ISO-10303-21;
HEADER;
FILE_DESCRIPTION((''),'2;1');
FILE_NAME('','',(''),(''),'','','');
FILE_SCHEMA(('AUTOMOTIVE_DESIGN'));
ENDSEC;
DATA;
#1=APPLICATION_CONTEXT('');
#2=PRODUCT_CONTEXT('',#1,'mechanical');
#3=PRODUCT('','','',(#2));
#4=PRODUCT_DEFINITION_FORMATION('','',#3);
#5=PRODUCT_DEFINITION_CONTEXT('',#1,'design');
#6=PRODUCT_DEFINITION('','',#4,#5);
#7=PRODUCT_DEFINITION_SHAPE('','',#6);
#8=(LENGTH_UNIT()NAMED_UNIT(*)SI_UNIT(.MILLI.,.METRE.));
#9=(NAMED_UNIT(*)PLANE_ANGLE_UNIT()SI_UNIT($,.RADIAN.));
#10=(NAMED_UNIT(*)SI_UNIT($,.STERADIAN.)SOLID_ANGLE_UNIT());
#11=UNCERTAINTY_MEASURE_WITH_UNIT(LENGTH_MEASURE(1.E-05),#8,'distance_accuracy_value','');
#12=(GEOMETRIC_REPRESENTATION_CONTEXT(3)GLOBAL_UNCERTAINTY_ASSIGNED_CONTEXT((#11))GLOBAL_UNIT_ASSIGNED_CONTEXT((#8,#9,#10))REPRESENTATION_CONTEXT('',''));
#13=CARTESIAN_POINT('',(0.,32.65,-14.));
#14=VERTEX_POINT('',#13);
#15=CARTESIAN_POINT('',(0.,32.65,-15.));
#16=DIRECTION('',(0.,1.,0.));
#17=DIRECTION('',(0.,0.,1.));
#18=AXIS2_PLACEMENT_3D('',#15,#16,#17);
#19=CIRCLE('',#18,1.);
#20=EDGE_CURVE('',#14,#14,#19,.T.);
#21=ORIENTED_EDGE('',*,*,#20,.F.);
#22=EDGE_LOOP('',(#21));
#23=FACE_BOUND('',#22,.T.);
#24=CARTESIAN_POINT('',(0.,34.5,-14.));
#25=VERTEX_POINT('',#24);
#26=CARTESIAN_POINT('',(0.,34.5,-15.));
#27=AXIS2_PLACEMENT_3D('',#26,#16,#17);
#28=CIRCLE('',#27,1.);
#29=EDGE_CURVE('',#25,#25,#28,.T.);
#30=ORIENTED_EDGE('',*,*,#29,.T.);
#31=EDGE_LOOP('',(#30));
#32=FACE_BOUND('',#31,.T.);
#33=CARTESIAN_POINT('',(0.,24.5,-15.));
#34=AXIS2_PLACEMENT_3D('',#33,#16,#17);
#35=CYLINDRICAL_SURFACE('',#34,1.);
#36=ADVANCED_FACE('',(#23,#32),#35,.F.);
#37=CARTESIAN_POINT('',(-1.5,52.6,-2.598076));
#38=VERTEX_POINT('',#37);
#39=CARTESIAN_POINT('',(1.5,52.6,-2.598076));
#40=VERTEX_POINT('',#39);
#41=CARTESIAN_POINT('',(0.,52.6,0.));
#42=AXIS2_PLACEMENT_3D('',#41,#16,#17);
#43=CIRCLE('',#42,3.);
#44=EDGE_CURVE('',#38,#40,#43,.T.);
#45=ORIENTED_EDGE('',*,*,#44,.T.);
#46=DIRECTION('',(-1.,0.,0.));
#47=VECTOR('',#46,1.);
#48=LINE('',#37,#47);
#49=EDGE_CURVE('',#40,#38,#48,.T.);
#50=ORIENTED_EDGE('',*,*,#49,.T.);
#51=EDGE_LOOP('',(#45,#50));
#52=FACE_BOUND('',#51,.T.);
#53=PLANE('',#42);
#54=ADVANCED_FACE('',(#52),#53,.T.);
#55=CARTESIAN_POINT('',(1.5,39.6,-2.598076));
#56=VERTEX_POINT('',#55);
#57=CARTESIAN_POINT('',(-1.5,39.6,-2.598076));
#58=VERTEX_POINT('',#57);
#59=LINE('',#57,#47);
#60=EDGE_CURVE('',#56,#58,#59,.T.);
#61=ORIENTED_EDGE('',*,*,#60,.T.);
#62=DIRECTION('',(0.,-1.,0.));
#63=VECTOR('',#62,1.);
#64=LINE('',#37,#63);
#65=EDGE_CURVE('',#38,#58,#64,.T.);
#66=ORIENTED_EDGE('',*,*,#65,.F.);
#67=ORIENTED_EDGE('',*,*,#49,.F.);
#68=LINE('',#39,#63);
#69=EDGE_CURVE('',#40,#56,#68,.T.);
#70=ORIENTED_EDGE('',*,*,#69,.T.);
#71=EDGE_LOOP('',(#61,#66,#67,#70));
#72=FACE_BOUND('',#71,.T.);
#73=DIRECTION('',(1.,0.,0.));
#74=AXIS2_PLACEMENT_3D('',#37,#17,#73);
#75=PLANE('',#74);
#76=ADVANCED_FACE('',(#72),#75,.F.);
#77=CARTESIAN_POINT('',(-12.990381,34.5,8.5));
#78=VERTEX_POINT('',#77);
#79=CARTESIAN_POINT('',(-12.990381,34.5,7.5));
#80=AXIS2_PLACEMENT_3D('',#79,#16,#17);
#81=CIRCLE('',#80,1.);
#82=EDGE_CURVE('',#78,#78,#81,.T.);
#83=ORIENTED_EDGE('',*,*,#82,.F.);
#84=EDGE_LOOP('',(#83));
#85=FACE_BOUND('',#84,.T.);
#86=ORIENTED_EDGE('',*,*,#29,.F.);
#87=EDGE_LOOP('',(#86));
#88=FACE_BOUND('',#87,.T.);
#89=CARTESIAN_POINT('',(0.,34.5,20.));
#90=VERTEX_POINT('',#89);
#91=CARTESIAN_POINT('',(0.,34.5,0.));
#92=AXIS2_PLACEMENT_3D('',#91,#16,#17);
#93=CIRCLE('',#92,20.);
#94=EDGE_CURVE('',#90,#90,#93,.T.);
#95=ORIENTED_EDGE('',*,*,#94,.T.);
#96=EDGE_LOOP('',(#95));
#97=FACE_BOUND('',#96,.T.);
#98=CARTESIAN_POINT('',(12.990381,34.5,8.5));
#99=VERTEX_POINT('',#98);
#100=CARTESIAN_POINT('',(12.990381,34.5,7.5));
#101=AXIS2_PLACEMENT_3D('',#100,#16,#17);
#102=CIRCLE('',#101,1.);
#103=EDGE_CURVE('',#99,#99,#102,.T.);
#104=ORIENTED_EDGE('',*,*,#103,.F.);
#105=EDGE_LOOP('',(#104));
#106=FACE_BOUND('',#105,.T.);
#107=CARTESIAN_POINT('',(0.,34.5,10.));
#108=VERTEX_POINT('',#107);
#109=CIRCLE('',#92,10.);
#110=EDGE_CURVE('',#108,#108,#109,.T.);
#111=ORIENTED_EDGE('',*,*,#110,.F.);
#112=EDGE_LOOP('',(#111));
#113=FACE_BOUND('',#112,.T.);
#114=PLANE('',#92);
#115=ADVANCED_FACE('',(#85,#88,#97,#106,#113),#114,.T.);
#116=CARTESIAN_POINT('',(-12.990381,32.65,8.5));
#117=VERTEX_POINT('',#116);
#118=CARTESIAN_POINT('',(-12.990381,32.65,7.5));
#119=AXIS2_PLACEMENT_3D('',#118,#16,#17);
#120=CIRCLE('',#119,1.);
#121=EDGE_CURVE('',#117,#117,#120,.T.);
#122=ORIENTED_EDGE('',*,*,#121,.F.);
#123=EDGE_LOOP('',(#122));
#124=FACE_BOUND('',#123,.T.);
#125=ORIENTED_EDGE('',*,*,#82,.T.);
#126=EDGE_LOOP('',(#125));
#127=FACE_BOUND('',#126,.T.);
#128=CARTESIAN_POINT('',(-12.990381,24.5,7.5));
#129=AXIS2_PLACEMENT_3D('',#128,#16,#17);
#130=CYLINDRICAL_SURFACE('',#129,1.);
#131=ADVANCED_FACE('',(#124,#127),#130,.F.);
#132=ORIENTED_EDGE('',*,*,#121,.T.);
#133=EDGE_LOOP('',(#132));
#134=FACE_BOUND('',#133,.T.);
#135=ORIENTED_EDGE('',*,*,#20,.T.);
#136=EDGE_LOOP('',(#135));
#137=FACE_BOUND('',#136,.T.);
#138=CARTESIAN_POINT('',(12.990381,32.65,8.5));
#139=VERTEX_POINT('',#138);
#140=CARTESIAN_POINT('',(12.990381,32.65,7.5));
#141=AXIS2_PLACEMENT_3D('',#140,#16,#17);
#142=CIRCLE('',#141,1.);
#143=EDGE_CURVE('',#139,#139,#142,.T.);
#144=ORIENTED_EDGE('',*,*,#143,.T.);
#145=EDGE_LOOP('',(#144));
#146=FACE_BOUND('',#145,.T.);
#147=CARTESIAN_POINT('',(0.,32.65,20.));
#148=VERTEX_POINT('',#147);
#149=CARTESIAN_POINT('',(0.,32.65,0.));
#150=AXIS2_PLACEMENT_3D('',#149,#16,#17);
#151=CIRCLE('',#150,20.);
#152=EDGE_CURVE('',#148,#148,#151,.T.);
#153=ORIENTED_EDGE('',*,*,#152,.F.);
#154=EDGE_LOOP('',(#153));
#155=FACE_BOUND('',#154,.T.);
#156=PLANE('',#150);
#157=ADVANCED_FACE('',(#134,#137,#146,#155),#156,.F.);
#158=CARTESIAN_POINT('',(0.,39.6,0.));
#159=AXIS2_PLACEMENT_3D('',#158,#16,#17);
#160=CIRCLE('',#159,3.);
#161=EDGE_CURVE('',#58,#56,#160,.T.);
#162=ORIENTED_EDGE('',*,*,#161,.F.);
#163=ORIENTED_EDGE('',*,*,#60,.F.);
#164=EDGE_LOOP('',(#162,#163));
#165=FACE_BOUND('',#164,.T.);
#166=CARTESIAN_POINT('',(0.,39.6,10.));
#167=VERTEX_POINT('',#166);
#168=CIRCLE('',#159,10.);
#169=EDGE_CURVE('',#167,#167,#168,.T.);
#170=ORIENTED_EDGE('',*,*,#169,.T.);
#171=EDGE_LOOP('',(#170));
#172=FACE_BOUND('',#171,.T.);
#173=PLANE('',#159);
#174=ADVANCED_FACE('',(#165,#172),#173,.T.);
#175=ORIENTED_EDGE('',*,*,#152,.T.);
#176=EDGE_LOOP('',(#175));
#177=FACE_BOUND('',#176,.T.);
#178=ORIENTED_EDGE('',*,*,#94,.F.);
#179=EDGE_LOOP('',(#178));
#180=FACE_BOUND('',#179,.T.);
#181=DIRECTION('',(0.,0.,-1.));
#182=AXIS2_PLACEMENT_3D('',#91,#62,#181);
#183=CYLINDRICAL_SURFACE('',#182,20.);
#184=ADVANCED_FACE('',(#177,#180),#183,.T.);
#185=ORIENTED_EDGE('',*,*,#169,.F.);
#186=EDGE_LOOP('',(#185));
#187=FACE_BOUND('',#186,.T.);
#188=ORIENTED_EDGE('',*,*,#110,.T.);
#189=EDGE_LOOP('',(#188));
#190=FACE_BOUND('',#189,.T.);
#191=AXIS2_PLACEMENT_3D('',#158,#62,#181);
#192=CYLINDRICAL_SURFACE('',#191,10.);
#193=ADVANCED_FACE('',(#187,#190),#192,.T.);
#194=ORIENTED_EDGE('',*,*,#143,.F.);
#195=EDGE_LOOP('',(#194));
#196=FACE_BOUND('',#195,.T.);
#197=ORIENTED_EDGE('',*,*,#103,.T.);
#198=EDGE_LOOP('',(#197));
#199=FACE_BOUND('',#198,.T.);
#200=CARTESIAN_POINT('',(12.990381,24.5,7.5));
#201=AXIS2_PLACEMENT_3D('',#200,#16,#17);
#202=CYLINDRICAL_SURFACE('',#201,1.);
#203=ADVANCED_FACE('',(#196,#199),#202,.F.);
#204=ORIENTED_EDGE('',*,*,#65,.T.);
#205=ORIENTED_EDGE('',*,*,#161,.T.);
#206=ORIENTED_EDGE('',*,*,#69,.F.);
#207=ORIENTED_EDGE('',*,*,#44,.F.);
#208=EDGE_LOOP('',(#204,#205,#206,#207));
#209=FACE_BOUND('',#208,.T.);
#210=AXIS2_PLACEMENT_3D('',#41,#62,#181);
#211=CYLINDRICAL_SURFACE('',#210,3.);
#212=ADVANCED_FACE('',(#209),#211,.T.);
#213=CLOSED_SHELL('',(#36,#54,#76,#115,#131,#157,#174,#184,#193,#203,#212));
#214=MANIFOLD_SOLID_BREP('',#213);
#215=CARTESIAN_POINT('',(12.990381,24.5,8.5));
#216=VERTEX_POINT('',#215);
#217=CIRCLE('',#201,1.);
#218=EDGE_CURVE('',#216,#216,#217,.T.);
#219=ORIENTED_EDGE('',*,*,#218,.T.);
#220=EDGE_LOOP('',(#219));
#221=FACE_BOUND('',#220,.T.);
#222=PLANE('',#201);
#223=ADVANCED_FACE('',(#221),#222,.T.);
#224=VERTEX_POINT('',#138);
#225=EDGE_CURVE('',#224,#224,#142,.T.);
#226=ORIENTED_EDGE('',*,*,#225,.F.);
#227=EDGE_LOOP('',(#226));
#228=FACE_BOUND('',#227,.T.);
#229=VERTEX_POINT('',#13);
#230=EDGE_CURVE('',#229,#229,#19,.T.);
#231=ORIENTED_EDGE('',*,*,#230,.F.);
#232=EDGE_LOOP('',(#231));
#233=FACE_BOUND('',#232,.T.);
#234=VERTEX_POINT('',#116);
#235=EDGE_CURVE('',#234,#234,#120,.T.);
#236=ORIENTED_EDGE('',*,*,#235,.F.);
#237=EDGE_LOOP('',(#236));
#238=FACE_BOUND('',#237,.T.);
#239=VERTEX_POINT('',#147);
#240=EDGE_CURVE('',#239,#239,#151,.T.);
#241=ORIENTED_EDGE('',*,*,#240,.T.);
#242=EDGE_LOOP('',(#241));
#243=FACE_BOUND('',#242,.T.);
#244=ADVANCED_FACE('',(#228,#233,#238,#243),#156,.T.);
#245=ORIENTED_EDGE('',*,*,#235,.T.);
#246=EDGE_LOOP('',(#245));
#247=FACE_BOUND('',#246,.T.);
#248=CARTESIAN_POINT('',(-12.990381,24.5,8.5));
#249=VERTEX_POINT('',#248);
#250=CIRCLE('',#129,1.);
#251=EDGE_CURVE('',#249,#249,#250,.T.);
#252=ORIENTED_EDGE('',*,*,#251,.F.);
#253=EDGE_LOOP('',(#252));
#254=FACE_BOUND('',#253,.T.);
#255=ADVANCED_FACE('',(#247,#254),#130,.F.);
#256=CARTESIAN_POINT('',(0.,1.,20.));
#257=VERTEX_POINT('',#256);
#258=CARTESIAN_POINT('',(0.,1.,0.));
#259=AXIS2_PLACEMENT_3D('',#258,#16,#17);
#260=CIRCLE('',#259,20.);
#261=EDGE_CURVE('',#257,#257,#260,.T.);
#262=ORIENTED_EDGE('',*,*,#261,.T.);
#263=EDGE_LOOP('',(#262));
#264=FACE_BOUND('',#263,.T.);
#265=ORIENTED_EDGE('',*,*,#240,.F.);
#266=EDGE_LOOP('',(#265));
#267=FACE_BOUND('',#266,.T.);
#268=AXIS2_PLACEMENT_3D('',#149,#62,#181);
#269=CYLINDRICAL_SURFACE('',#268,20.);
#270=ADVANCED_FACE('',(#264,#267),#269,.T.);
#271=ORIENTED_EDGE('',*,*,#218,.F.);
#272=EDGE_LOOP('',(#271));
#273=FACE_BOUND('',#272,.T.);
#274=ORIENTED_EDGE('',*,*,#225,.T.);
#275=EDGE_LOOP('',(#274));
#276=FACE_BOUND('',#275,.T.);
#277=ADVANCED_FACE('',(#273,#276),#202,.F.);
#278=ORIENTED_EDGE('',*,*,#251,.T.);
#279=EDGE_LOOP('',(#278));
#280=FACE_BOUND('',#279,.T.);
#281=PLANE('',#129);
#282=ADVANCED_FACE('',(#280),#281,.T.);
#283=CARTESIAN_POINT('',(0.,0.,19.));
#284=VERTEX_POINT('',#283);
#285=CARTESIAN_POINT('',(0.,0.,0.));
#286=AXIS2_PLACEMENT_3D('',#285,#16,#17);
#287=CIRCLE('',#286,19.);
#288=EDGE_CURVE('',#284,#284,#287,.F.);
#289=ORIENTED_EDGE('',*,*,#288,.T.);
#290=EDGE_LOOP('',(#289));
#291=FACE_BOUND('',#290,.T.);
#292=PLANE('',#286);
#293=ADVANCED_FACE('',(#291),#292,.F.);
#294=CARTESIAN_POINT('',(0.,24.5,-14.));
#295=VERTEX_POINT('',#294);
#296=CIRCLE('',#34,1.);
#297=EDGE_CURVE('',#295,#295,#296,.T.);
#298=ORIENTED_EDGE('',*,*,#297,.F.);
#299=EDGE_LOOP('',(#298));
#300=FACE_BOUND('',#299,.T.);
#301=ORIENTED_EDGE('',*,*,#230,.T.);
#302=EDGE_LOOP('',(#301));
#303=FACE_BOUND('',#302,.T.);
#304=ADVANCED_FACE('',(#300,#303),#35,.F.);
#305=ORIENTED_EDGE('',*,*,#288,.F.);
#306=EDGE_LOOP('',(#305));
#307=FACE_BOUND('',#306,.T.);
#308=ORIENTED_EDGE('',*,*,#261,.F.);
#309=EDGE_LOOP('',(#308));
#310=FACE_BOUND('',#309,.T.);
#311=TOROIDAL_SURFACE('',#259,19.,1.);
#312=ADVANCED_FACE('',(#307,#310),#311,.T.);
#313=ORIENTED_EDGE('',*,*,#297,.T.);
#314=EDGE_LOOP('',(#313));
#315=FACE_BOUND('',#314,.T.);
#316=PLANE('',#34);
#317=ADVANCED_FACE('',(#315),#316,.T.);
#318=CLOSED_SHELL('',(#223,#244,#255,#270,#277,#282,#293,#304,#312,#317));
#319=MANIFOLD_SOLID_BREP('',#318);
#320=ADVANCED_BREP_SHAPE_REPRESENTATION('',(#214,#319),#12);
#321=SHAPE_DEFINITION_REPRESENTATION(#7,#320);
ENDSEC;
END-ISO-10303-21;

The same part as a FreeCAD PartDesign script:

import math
import FreeCAD as App
import Part
import Sketcher

V = App.Vector


def edges_at(feature, points):
    """Names of the edges that pass closest to the given points."""
    edges = feature.Shape.Edges
    near = lambda p: min(range(len(edges)), key=lambda i: edges[i].distToShape(Part.Vertex(*p))[0])
    return sorted({f"Edge{near(p) + 1}" for p in points})

doc = App.newDocument("Part")
body = doc.addObject("PartDesign::Body", "Body")

# Sketch on XZ plane
sketch1 = body.newObject("Sketcher::SketchObject", "Sketch")
sketch1.AttachmentSupport = (doc.getObject("XZ_Plane"), [""])
sketch1.MapMode = "FlatFace"
sketch1.addGeometry(Part.Circle(V(0, 0, 0), V(0, 0, 1), 20), False)
sketch1.addConstraint([
    Sketcher.Constraint("Coincident", 0, 3, -1, 1),
    Sketcher.Constraint("Diameter", 0, 40.0),
])
pad1 = body.newObject("PartDesign::Pad", "Pad")
pad1.Profile = sketch1
pad1.Length = 32.65
pad1.Reversed = True
body2 = doc.addObject("PartDesign::Body", "Body001")

# Sketch on XZ plane
sketch2 = body2.newObject("Sketcher::SketchObject", "Sketch001")
sketch2.AttachmentSupport = (doc.getObject("XZ_Plane001"), [""])
sketch2.MapMode = "FlatFace"
sketch2.AttachmentOffset = App.Placement(V(0, 0, -32.65), App.Rotation())
sketch2.addGeometry(Part.Circle(V(0, 0, 0), V(0, 0, 1), 20), False)
sketch2.addConstraint([
    Sketcher.Constraint("Coincident", 0, 3, -1, 1),
    Sketcher.Constraint("Diameter", 0, 40.0),
])
pad2 = body2.newObject("PartDesign::Pad", "Pad001")
pad2.Profile = sketch2
pad2.Length = 1.85
pad2.Reversed = True

# Sketch on XZ plane
sketch3 = body2.newObject("Sketcher::SketchObject", "Sketch002")
sketch3.AttachmentSupport = (doc.getObject("XZ_Plane001"), [""])
sketch3.MapMode = "FlatFace"
sketch3.AttachmentOffset = App.Placement(V(0, 0, -34.5), App.Rotation())
sketch3.addGeometry(Part.Circle(V(0, 0, 0), V(0, 0, 1), 10), False)
sketch3.addConstraint([
    Sketcher.Constraint("Coincident", 0, 3, -1, 1),
    Sketcher.Constraint("Diameter", 0, 20.0),
])
pad3 = body2.newObject("PartDesign::Pad", "Pad002")
pad3.Profile = sketch3
pad3.Length = 5.1
pad3.Reversed = True
body3 = doc.addObject("PartDesign::Body", "Body002")
body3.AllowCompound = True

# Sketch on XZ plane
sketch4 = body3.newObject("Sketcher::SketchObject", "Sketch003")
sketch4.AttachmentSupport = (doc.getObject("XZ_Plane002"), [""])
sketch4.MapMode = "FlatFace"
sketch4.AttachmentOffset = App.Placement(V(0, 0, -34.5), App.Rotation())
sketch4.addGeometry([
    Part.Circle(V(0, -15, 0), V(0, 0, 1), 1),
    Part.Circle(V(13, 7.5, 0), V(0, 0, 1), 1),
    Part.Circle(V(-13, 7.5, 0), V(0, 0, 1), 1),
], False)
sketch4.addConstraint([
    Sketcher.Constraint("Equal", 0, 1),
    Sketcher.Constraint("Equal", 1, 2),
    Sketcher.Constraint("Symmetric", 1, 3, 2, 3, -2),
    Sketcher.Constraint("PointOnObject", 0, 3, -2),
    Sketcher.Constraint("Diameter", 0, 2.0),
    Sketcher.Constraint("DistanceY", 0, 3, -1, 1, 15.0),
    Sketcher.Constraint("DistanceY", -1, 1, 1, 3, 7.5),
    Sketcher.Constraint("DistanceX", -1, 1, 1, 3, 12.990381),
])
pad4 = body3.newObject("PartDesign::Pad", "Pad003")
pad4.Profile = sketch4
pad4.Length = 10
doc.recompute()

body4 = doc.addObject("PartDesign::Body", "Body003")
body4.BaseFeature = body3
boolean = body.newObject("PartDesign::Boolean", "Boolean")
boolean.Type = "Cut"
boolean.addObjects([body4])
doc.recompute()

fillet = body.newObject("PartDesign::Fillet", "Fillet")
fillet.Base = (boolean, edges_at(boolean, [(0, 0, -20)]))
fillet.Radius = 1
doc.recompute()

boolean2 = body2.newObject("PartDesign::Boolean", "Boolean001")
boolean2.Type = "Cut"
boolean2.addObjects([body3])

# Sketch on XZ plane
sketch5 = body2.newObject("Sketcher::SketchObject", "Sketch004")
sketch5.AttachmentSupport = (doc.getObject("XZ_Plane001"), [""])
sketch5.MapMode = "FlatFace"
sketch5.AttachmentOffset = App.Placement(V(0, 0, -39.6), App.Rotation())
sketch5.addGeometry([
    Part.LineSegment(V(1.5, -2.6, 0), V(-1.5, -2.6, 0)),
    Part.ArcOfCircle(Part.Circle(V(0, 0, 0), V(0, 0, 1), 3), math.radians(-60), math.radians(240)),
], False)
sketch5.addConstraint([
    Sketcher.Constraint("Coincident", 0, 1, 1, 1),
    Sketcher.Constraint("Coincident", 1, 2, 0, 2),
    Sketcher.Constraint("Horizontal", 0),
    Sketcher.Constraint("Coincident", 1, 3, -1, 1),
    Sketcher.Constraint("Radius", 1, 3.0),
    Sketcher.Constraint("DistanceX", 0, 2, 0, 1, 3.0),
])
pad5 = body2.newObject("PartDesign::Pad", "Pad004")
pad5.Profile = sketch5
pad5.Length = 13
pad5.Reversed = True

doc.recompute()
